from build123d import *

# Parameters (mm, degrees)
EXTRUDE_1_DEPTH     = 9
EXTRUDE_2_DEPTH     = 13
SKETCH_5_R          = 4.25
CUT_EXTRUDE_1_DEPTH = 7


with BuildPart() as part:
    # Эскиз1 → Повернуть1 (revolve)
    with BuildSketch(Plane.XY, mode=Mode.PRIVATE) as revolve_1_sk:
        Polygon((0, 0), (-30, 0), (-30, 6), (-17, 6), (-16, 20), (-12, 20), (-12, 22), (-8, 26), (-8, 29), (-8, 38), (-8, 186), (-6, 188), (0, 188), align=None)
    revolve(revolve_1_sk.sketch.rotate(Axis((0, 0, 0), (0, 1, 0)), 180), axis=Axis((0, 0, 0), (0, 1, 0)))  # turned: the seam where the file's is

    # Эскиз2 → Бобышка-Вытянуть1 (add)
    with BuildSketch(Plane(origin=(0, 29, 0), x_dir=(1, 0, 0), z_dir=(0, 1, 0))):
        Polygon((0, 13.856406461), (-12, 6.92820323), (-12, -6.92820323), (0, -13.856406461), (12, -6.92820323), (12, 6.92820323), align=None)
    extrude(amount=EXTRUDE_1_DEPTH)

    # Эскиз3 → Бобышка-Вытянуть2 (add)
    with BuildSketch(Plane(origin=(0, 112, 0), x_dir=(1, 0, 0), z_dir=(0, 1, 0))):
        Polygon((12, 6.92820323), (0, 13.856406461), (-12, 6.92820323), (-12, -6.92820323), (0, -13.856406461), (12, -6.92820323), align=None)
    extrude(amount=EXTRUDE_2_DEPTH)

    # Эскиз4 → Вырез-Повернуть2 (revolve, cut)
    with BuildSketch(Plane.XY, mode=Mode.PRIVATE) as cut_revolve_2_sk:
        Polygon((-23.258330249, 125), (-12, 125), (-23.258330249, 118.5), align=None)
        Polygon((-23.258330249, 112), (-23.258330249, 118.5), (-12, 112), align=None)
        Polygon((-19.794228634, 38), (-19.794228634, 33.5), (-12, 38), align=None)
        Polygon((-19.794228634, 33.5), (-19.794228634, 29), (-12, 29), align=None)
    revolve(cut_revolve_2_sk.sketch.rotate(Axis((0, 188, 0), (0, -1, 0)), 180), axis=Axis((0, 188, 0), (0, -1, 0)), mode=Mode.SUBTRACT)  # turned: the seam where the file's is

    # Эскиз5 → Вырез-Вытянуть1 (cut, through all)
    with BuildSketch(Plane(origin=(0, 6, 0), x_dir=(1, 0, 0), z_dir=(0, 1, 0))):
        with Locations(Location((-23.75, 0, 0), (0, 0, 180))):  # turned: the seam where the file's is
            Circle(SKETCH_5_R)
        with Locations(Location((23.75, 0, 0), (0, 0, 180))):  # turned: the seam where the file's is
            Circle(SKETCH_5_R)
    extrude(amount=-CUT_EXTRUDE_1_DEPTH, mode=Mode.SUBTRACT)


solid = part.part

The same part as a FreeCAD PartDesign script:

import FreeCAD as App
import Part
import Sketcher
Q = App.Units.Quantity

doc = App.newDocument("Part")
body = doc.addObject("PartDesign::Body", "Body")

sketch1 = body.newObject("Sketcher::SketchObject", "Sketch")
sketch1.AttachmentSupport = (doc.getObject("XY_Plane"), [""])
sketch1.MapMode = "FlatFace"
sketch1.addGeometry(Part.LineSegment(App.Vector(-30, 0, 0), App.Vector(0, 0, 0)), False)
sketch1.addGeometry(Part.LineSegment(App.Vector(0, 0, 0), App.Vector(0, 188, 0)), False)
sketch1.addGeometry(Part.LineSegment(App.Vector(0, 188, 0), App.Vector(-6, 188, 0)), False)
sketch1.addGeometry(Part.LineSegment(App.Vector(-6, 188, 0), App.Vector(-8, 186, 0)), False)
sketch1.addGeometry(Part.LineSegment(App.Vector(-8, 186, 0), App.Vector(-8, 26, 0)), False)
sketch1.addGeometry(Part.LineSegment(App.Vector(-8, 26, 0), App.Vector(-12, 22, 0)), False)
sketch1.addGeometry(Part.LineSegment(App.Vector(-12, 22, 0), App.Vector(-12, 20, 0)), False)
sketch1.addGeometry(Part.LineSegment(App.Vector(-12, 20, 0), App.Vector(-16, 20, 0)), False)
sketch1.addGeometry(Part.LineSegment(App.Vector(-16, 20, 0), App.Vector(-17, 6, 0)), False)
sketch1.addGeometry(Part.LineSegment(App.Vector(-17, 6, 0), App.Vector(-30, 6, 0)), False)
sketch1.addGeometry(Part.LineSegment(App.Vector(-30, 6, 0), App.Vector(-30, 0, 0)), False)
sketch1.addConstraint(Sketcher.Constraint("Coincident", 0, 2, 1, 1))
sketch1.addConstraint(Sketcher.Constraint("Coincident", 1, 2, 2, 1))
sketch1.addConstraint(Sketcher.Constraint("Coincident", 2, 2, 3, 1))
sketch1.addConstraint(Sketcher.Constraint("Coincident", 3, 2, 4, 1))
sketch1.addConstraint(Sketcher.Constraint("Coincident", 4, 2, 5, 1))
sketch1.addConstraint(Sketcher.Constraint("Coincident", 5, 2, 6, 1))
sketch1.addConstraint(Sketcher.Constraint("Coincident", 6, 2, 7, 1))
sketch1.addConstraint(Sketcher.Constraint("Coincident", 7, 2, 8, 1))
sketch1.addConstraint(Sketcher.Constraint("Coincident", 8, 2, 9, 1))
sketch1.addConstraint(Sketcher.Constraint("Coincident", 9, 2, 10, 1))
sketch1.addConstraint(Sketcher.Constraint("Coincident", 10, 2, 0, 1))
sketch1.addConstraint(Sketcher.Constraint("Horizontal", 0))
sketch1.addConstraint(Sketcher.Constraint("Vertical", 1))
sketch1.addConstraint(Sketcher.Constraint("Horizontal", 2))
sketch1.addConstraint(Sketcher.Constraint("Vertical", 4))
sketch1.addConstraint(Sketcher.Constraint("Vertical", 6))
sketch1.addConstraint(Sketcher.Constraint("Horizontal", 7))
sketch1.addConstraint(Sketcher.Constraint("Horizontal", 9))
sketch1.addConstraint(Sketcher.Constraint("Vertical", 10))
sketch1.addConstraint(Sketcher.Constraint("Coincident", 0, 2, -1, 1))
sketch1.addConstraint(Sketcher.Constraint("Parallel", 3, 5))
sketch1.addConstraint(Sketcher.Constraint("Equal", 2, 10))
sketch1.addConstraint(Sketcher.Constraint("DistanceX", 0, 1, 0, 2, Q("30 mm")))
sketch1.addConstraint(Sketcher.Constraint("DistanceX", 2, 2, 2, 1, Q("6 mm")))
sketch1.addConstraint(Sketcher.Constraint("DistanceX", 7, 2, 7, 1, Q("4 mm")))
sketch1.addConstraint(Sketcher.Constraint("DistanceX", 9, 2, 9, 1, Q("13 mm")))
sketch1.addConstraint(Sketcher.Constraint("DistanceY", 1, 1, 1, 2, Q("188 mm")))
sketch1.addConstraint(Sketcher.Constraint("DistanceY", 4, 2, 4, 1, Q("160 mm")))
sketch1.addConstraint(Sketcher.Constraint("DistanceY", 6, 2, 6, 1, Q("2 mm")))
sketch1.addConstraint(Sketcher.Constraint("Angle", 3, Q("-135 deg")))
sketch1.addConstraint(Sketcher.Constraint("DistanceX", 3, 2, -1, 1, Q("8 mm")))
sketch1.addConstraint(Sketcher.Constraint("DistanceX", 5, 2, -1, 1, Q("12 mm")))
revolution = body.newObject("PartDesign::Revolution", "Revolution")
revolution.Profile = sketch1
revolution.ReferenceAxis = (sketch1, ["V_Axis"])
revolution.Angle = 360

sketch2 = body.newObject("Sketcher::SketchObject", "Sketch001")
sketch2.AttachmentSupport = (doc.getObject("XZ_Plane"), [""])
sketch2.MapMode = "FlatFace"
sketch2.AttachmentOffset = App.Placement(App.Vector(0, 0, -29), App.Rotation())
sketch2.addGeometry(Part.LineSegment(App.Vector(0, -14, 0), App.Vector(-12, -7, 0)), False)
sketch2.addGeometry(Part.LineSegment(App.Vector(-12, -7, 0), App.Vector(-12, 7, 0)), False)
sketch2.addGeometry(Part.LineSegment(App.Vector(-12, 7, 0), App.Vector(0, 14, 0)), False)
sketch2.addGeometry(Part.LineSegment(App.Vector(0, 14, 0), App.Vector(12, 7, 0)), False)
sketch2.addGeometry(Part.LineSegment(App.Vector(12, 7, 0), App.Vector(12, -7, 0)), False)
sketch2.addGeometry(Part.LineSegment(App.Vector(12, -7, 0), App.Vector(0, -14, 0)), False)
sketch2.addConstraint(Sketcher.Constraint("Coincident", 0, 2, 1, 1))
sketch2.addConstraint(Sketcher.Constraint("Coincident", 1, 2, 2, 1))
sketch2.addConstraint(Sketcher.Constraint("Coincident", 2, 2, 3, 1))
sketch2.addConstraint(Sketcher.Constraint("Coincident", 3, 2, 4, 1))
sketch2.addConstraint(Sketcher.Constraint("Coincident", 4, 2, 5, 1))
sketch2.addConstraint(Sketcher.Constraint("Coincident", 5, 2, 0, 1))
sketch2.addConstraint(Sketcher.Constraint("Vertical", 1))
sketch2.addConstraint(Sketcher.Constraint("Vertical", 4))
sketch2.addConstraint(Sketcher.Constraint("Symmetric", 0, 2, 3, 2, -1, 1))
sketch2.addConstraint(Sketcher.Constraint("Symmetric", 2, 2, 5, 2, -1, 1))
sketch2.addConstraint(Sketcher.Constraint("PointOnObject", 2, 2, -2))
sketch2.addConstraint(Sketcher.Constraint("Parallel", 2, 5))
sketch2.addConstraint(Sketcher.Constraint("Horizontal", 1, 2, 3, 2))
sketch2.addConstraint(Sketcher.Constraint("Angle", 0, Q("150 deg")))
sketch2.addConstraint(Sketcher.Constraint("DistanceX", 0, 2, -1, 1, Q("12 mm")))
sketch2.addConstraint(Sketcher.Constraint("DistanceY", 1, 1, 1, 2, Q("13.856406 mm")))
pad1 = body.newObject("PartDesign::Pad", "Pad")
pad1.Profile = sketch2
pad1.Length = 9
pad1.Reversed = True

sketch3 = body.newObject("Sketcher::SketchObject", "Sketch002")
sketch3.AttachmentSupport = (doc.getObject("XZ_Plane"), [""])
sketch3.MapMode = "FlatFace"
sketch3.AttachmentOffset = App.Placement(App.Vector(0, 0, -112), App.Rotation())
sketch3.addGeometry(Part.LineSegment(App.Vector(12, -7, 0), App.Vector(0, -14, 0)), False)
sketch3.addGeometry(Part.LineSegment(App.Vector(0, -14, 0), App.Vector(-12, -7, 0)), False)
sketch3.addGeometry(Part.LineSegment(App.Vector(-12, -7, 0), App.Vector(-12, 7, 0)), False)
sketch3.addGeometry(Part.LineSegment(App.Vector(-12, 7, 0), App.Vector(0, 14, 0)), False)
sketch3.addGeometry(Part.LineSegment(App.Vector(0, 14, 0), App.Vector(12, 7, 0)), False)
sketch3.addGeometry(Part.LineSegment(App.Vector(12, 7, 0), App.Vector(12, -7, 0)), False)
sketch3.addConstraint(Sketcher.Constraint("Coincident", 0, 2, 1, 1))
sketch3.addConstraint(Sketcher.Constraint("Coincident", 1, 2, 2, 1))
sketch3.addConstraint(Sketcher.Constraint("Coincident", 2, 2, 3, 1))
sketch3.addConstraint(Sketcher.Constraint("Coincident", 3, 2, 4, 1))
sketch3.addConstraint(Sketcher.Constraint("Coincident", 4, 2, 5, 1))
sketch3.addConstraint(Sketcher.Constraint("Coincident", 5, 2, 0, 1))
sketch3.addConstraint(Sketcher.Constraint("Vertical", 2))
sketch3.addConstraint(Sketcher.Constraint("Vertical", 5))
sketch3.addConstraint(Sketcher.Constraint("Symmetric", 0, 2, 3, 2, -1, 1))
sketch3.addConstraint(Sketcher.Constraint("Symmetric", 1, 2, 4, 2, -1, 1))
sketch3.addConstraint(Sketcher.Constraint("PointOnObject", 0, 2, -2))
sketch3.addConstraint(Sketcher.Constraint("Parallel", 0, 3))
sketch3.addConstraint(Sketcher.Constraint("Horizontal", 2, 2, 4, 2))
sketch3.addConstraint(Sketcher.Constraint("Angle", 0, Q("-150 deg")))
sketch3.addConstraint(Sketcher.Constraint("DistanceX", 1, 2, -1, 1, Q("12 mm")))
sketch3.addConstraint(Sketcher.Constraint("DistanceY", 2, 1, 2, 2, Q("13.856406 mm")))
pad2 = body.newObject("PartDesign::Pad", "Pad001")
pad2.Profile = sketch3
pad2.Length = 13
pad2.Reversed = True

sketch4 = body.newObject("Sketcher::SketchObject", "Sketch003")
sketch4.AttachmentSupport = (doc.getObject("XY_Plane"), [""])
sketch4.MapMode = "FlatFace"
sketch4.addGeometry(Part.LineSegment(App.Vector(-12, 125, 0), App.Vector(-23.3, 125, 0)), False)
sketch4.addGeometry(Part.LineSegment(App.Vector(-23.3, 125, 0), App.Vector(-23.3, 118.5, 0)), False)
sketch4.addGeometry(Part.LineSegment(App.Vector(-23.3, 118.5, 0), App.Vector(-12, 125, 0)), False)
sketch4.addGeometry(Part.LineSegment(App.Vector(-23.3, 118.5, 0), App.Vector(-23.3, 112, 0)), False)
sketch4.addGeometry(Part.LineSegment(App.Vector(-23.3, 112, 0), App.Vector(-12, 112, 0)), False)
sketch4.addGeometry(Part.LineSegment(App.Vector(-12, 112, 0), App.Vector(-23.3, 118.5, 0)), False)
sketch4.addGeometry(Part.LineSegment(App.Vector(-19.8, 38, 0), App.Vector(-19.8, 33.5, 0)), False)
sketch4.addGeometry(Part.LineSegment(App.Vector(-19.8, 33.5, 0), App.Vector(-12, 38, 0)), False)
sketch4.addGeometry(Part.LineSegment(App.Vector(-12, 38, 0), App.Vector(-19.8, 38, 0)), False)
sketch4.addGeometry(Part.LineSegment(App.Vector(-19.8, 33.5, 0), App.Vector(-19.8, 29, 0)), False)
sketch4.addGeometry(Part.LineSegment(App.Vector(-19.8, 29, 0), App.Vector(-12, 29, 0)), False)
sketch4.addGeometry(Part.LineSegment(App.Vector(-12, 29, 0), App.Vector(-19.8, 33.5, 0)), False)
sketch4.addConstraint(Sketcher.Constraint("Coincident", 0, 2, 1, 1))
sketch4.addConstraint(Sketcher.Constraint("Coincident", 1, 2, 2, 1))
sketch4.addConstraint(Sketcher.Constraint("Coincident", 2, 2, 0, 1))
sketch4.addConstraint(Sketcher.Constraint("Coincident", 3, 2, 4, 1))
sketch4.addConstraint(Sketcher.Constraint("Coincident", 4, 2, 5, 1))
sketch4.addConstraint(Sketcher.Constraint("Coincident", 5, 2, 3, 1))
sketch4.addConstraint(Sketcher.Constraint("Coincident", 6, 2, 7, 1))
sketch4.addConstraint(Sketcher.Constraint("Coincident", 7, 2, 8, 1))
sketch4.addConstraint(Sketcher.Constraint("Coincident", 8, 2, 6, 1))
sketch4.addConstraint(Sketcher.Constraint("Coincident", 9, 2, 10, 1))
sketch4.addConstraint(Sketcher.Constraint("Coincident", 10, 2, 11, 1))
sketch4.addConstraint(Sketcher.Constraint("Coincident", 11, 2, 9, 1))
sketch4.addConstraint(Sketcher.Constraint("Horizontal", 0))
sketch4.addConstraint(Sketcher.Constraint("Vertical", 1))
sketch4.addConstraint(Sketcher.Constraint("Vertical", 3))
sketch4.addConstraint(Sketcher.Constraint("Horizontal", 4))
sketch4.addConstraint(Sketcher.Constraint("Vertical", 6))
sketch4.addConstraint(Sketcher.Constraint("Horizontal", 8))
sketch4.addConstraint(Sketcher.Constraint("Vertical", 9))
sketch4.addConstraint(Sketcher.Constraint("Horizontal", 10))
sketch4.addConstraint(Sketcher.Constraint("Coincident", 5, 2, 1, 2))
sketch4.addConstraint(Sketcher.Constraint("Coincident", 11, 2, 6, 2))
sketch4.addConstraint(Sketcher.Constraint("Parallel", 2, 7))
sketch4.addConstraint(Sketcher.Constraint("Parallel", 5, 11))
sketch4.addConstraint(Sketcher.Constraint("Vertical", 2, 2, 4, 2))
sketch4.addConstraint(Sketcher.Constraint("Vertical", 4, 2, 7, 2))
sketch4.addConstraint(Sketcher.Constraint("Vertical", 7, 2, 10, 2))
sketch4.addConstraint(Sketcher.Constraint("Equal", 1, 3))
sketch4.addConstraint(Sketcher.Constraint("Angle", 2, Q("30 deg")))
sketch4.addConstraint(Sketcher.Constraint("Distance", 2, Q("13 mm")))
sketch4.addConstraint(Sketcher.Constraint("Distance", 7, Q("9 mm")))
sketch4.addConstraint(Sketcher.Constraint("DistanceY", -1, 1, 0, 2, Q("125 mm")))
sketch4.addConstraint(Sketcher.Constraint("DistanceX", 2, 2, -1, 1, Q("12 mm")))
sketch4.addConstraint(Sketcher.Constraint("DistanceY", -1, 1, 7, 2, Q("38 mm")))
groove = body.newObject("PartDesign::Groove", "Groove")
groove.Profile = sketch4
groove.ReferenceAxis = (sketch4, ["V_Axis"])
groove.Angle = 360

sketch5 = body.newObject("Sketcher::SketchObject", "Sketch004")
sketch5.AttachmentSupport = (doc.getObject("XZ_Plane"), [""])
sketch5.MapMode = "FlatFace"
sketch5.AttachmentOffset = App.Placement(App.Vector(0, 0, -6), App.Rotation())
sketch5.addGeometry(Part.Circle(App.Vector(-23.8, 0, 0), App.Vector(0, 0, 1), 4.2), False)
sketch5.addGeometry(Part.Circle(App.Vector(23.8, 0, 0), App.Vector(0, 0, 1), 4.2), False)
sketch5.addConstraint(Sketcher.Constraint("Equal", 0, 1))
sketch5.addConstraint(Sketcher.Constraint("Symmetric", 0, 3, 1, 3, -1, 1))
sketch5.addConstraint(Sketcher.Constraint("PointOnObject", 0, 3, -1))
sketch5.addConstraint(Sketcher.Constraint("Diameter", 0, Q("8.5 mm")))
sketch5.addConstraint(Sketcher.Constraint("DistanceX", 0, 3, 1, 3, Q("47.5 mm")))
pocket1 = body.newObject("PartDesign::Pocket", "Pocket")
pocket1.Profile = sketch5
pocket1.Type = "ThroughAll"
pocket1.Reversed = True

doc.recompute()
